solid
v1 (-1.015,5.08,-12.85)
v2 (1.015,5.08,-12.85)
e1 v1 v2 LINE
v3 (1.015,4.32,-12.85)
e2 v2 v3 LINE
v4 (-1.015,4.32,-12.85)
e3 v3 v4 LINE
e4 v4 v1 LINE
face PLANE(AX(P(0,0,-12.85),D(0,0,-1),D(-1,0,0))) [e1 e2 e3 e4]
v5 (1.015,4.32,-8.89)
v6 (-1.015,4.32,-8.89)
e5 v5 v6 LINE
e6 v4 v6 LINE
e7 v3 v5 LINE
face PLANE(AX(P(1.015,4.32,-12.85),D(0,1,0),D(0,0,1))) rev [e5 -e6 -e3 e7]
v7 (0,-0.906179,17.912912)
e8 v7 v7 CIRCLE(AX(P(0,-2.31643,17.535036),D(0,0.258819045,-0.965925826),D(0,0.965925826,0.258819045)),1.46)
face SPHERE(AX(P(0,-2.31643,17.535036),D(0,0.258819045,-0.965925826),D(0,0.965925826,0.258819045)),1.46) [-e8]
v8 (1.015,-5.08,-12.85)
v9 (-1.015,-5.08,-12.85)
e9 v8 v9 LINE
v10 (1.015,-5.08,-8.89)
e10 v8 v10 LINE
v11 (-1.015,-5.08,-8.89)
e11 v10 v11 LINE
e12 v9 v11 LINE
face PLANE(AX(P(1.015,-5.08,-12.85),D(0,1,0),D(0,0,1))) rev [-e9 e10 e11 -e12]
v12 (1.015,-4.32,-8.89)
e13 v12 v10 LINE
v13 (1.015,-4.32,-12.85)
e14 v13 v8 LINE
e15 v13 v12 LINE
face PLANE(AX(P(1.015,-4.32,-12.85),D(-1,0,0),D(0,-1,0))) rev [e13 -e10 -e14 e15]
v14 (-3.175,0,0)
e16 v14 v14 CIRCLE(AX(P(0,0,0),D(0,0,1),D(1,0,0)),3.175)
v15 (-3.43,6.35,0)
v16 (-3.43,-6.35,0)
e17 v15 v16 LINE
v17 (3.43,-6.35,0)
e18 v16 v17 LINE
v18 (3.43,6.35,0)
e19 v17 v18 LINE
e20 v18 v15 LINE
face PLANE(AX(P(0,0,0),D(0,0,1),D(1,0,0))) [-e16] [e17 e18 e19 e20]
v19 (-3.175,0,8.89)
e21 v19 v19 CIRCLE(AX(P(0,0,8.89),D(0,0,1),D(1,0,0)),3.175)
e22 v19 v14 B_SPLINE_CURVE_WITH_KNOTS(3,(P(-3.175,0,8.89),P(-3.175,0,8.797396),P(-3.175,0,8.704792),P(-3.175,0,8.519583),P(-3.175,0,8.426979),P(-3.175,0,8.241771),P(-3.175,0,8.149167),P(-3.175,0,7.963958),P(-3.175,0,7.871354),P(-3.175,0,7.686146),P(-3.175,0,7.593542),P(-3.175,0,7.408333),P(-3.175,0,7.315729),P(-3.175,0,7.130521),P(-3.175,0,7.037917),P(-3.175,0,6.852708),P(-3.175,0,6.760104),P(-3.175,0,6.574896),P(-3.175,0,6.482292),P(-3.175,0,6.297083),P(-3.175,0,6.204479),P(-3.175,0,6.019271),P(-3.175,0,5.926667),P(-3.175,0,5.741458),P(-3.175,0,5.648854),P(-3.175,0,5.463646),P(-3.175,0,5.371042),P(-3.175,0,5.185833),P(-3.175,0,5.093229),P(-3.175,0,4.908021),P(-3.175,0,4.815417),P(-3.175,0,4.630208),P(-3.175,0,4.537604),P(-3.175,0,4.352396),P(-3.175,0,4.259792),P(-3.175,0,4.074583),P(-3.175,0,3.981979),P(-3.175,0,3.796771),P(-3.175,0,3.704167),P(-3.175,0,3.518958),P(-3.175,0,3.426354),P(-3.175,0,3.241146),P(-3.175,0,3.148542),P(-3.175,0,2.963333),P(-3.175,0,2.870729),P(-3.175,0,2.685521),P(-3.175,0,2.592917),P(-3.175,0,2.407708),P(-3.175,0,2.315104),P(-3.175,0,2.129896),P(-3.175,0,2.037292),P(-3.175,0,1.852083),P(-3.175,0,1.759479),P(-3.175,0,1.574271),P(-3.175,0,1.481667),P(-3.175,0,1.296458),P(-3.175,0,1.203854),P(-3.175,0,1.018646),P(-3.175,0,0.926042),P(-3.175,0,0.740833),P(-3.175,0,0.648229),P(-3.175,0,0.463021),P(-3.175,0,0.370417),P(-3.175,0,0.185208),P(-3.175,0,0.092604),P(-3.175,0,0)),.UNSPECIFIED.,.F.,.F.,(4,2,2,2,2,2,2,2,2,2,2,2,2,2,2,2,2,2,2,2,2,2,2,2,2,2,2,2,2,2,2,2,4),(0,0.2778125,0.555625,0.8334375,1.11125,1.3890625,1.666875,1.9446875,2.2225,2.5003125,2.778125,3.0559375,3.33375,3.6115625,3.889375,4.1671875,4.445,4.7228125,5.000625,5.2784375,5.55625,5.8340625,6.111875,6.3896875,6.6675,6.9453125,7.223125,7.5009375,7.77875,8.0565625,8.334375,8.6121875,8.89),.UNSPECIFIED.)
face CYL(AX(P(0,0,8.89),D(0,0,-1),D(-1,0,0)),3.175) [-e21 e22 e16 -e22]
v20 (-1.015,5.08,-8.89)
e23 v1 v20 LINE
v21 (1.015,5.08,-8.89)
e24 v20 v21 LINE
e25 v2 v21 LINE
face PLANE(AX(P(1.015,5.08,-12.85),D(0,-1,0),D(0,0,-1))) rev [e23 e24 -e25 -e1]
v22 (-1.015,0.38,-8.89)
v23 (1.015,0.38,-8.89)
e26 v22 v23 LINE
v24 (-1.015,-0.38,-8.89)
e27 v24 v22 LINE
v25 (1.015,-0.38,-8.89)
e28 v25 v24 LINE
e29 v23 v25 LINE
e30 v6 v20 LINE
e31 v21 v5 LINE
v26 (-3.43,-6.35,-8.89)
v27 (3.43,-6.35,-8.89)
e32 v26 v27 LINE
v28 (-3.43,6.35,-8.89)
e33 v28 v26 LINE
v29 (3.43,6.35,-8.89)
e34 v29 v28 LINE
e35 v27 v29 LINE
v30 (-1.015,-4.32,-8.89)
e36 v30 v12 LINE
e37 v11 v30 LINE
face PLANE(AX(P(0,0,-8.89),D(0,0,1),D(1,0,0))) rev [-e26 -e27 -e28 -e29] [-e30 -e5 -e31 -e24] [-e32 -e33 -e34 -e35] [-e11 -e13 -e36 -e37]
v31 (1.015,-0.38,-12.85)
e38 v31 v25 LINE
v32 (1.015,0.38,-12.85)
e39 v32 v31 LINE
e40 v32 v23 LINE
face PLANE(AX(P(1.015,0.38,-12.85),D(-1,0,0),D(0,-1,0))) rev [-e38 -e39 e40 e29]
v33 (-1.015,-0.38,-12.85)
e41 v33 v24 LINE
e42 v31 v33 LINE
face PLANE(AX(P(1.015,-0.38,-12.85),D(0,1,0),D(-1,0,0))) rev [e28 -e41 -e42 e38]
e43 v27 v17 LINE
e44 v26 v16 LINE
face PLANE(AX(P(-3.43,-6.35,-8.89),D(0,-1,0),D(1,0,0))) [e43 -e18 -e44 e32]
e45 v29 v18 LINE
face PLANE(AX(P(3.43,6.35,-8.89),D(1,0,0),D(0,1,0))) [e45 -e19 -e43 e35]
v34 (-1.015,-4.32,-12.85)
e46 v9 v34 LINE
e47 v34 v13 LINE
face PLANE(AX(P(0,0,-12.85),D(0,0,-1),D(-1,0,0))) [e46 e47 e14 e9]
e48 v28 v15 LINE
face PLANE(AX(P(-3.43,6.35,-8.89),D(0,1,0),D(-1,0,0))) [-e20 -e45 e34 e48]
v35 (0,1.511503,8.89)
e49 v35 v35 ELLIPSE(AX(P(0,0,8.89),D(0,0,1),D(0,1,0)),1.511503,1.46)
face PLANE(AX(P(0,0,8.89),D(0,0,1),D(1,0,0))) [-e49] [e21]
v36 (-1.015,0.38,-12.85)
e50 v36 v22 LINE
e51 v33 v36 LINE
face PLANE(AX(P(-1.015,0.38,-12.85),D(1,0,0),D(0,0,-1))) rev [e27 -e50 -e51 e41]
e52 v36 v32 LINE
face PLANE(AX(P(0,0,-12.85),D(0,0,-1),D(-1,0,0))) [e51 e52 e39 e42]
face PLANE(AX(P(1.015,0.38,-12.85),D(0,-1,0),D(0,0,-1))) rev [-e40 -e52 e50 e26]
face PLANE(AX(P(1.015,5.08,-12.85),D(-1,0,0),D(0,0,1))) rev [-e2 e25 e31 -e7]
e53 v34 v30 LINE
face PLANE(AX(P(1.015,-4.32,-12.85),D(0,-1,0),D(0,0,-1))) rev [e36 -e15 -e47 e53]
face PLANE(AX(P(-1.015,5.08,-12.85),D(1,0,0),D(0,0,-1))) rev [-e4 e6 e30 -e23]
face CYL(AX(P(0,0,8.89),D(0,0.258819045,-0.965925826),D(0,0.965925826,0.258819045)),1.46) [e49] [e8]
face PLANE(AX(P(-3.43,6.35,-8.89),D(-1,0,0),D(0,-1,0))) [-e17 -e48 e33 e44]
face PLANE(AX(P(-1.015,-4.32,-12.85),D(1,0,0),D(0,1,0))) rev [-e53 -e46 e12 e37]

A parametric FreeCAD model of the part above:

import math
import FreeCAD as App
import Part
import Sketcher
from FreeCAD import Vector
Q = App.Units.Quantity

doc = App.newDocument("Part")
body = doc.addObject("PartDesign::Body", "Body")

# Sketch on XY plane
sketch1 = body.newObject("Sketcher::SketchObject", "Sketch")
sketch1.AttachmentSupport = (doc.getObject("XY_Plane"), [""])
sketch1.MapMode = "FlatFace"
sketch1.addGeometry(Part.LineSegment(Vector(-3, 6, 0), Vector(-3, -6, 0)), False)
sketch1.addGeometry(Part.LineSegment(Vector(-3, -6, 0), Vector(3, -6, 0)), False)
sketch1.addGeometry(Part.LineSegment(Vector(3, -6, 0), Vector(3, 6, 0)), False)
sketch1.addGeometry(Part.LineSegment(Vector(3, 6, 0), Vector(-3, 6, 0)), False)
sketch1.addConstraint(Sketcher.Constraint("Coincident", 0, 2, 1, 1))
sketch1.addConstraint(Sketcher.Constraint("Coincident", 1, 2, 2, 1))
sketch1.addConstraint(Sketcher.Constraint("Coincident", 2, 2, 3, 1))
sketch1.addConstraint(Sketcher.Constraint("Coincident", 3, 2, 0, 1))
sketch1.addConstraint(Sketcher.Constraint("Vertical", 0))
sketch1.addConstraint(Sketcher.Constraint("Horizontal", 1))
sketch1.addConstraint(Sketcher.Constraint("Vertical", 2))
sketch1.addConstraint(Sketcher.Constraint("Horizontal", 3))
sketch1.addConstraint(Sketcher.Constraint("Symmetric", 0, 2, 2, 2, -1, 1))
sketch1.addConstraint(Sketcher.Constraint("DistanceY", 0, 2, 0, 1, Q("0.5 in")))
sketch1.addConstraint(Sketcher.Constraint("DistanceX", 1, 1, 1, 2, Q("6.86 mm")))
pad1 = body.newObject("PartDesign::Pad", "Pad")
pad1.Profile = sketch1
pad1.Length = Q("0.35 in")
pad1.Reversed = True

# Sketch on XY plane
sketch2 = body.newObject("Sketcher::SketchObject", "Sketch001")
sketch2.AttachmentSupport = (doc.getObject("XY_Plane"), [""])
sketch2.MapMode = "FlatFace"
sketch2.addGeometry(Part.Circle(Vector(0, 0, 0), Vector(0, 0, 1), 3.2), False)
sketch2.addConstraint(Sketcher.Constraint("Coincident", 0, 3, -1, 1))
sketch2.addConstraint(Sketcher.Constraint("Diameter", 0, Q("0.25 in")))
pad2 = body.newObject("PartDesign::Pad", "Pad001")
pad2.Profile = sketch2
pad2.Length = Q("0.35 in")

# Sketch on YZ plane
sketch3 = body.newObject("Sketcher::SketchObject", "Sketch002")
sketch3.AttachmentSupport = (doc.getObject("YZ_Plane"), [""])
sketch3.MapMode = "FlatFace"
sketch3.addGeometry(Part.LineSegment(Vector(1.5, 8.9, 0), Vector(-0.9, 17.9, 0)), False)
sketch3.addGeometry(Part.ArcOfCircle(Part.Circle(Vector(-2.3, 17.5, 0), Vector(0, 0, 1), 1.5), math.radians(15), math.radians(105)), False)
sketch3.addGeometry(Part.LineSegment(Vector(-2.7, 18.9, 0), Vector(0.1, 8.5, 0)), False)
sketch3.addGeometry(Part.LineSegment(Vector(0.1, 8.5, 0), Vector(1.5, 8.9, 0)), False)
sketch3.addGeometry(Part.LineSegment(Vector(0.1, 8.5, 0), Vector(-2.7, 18.9, 0)), True)  # axis
sketch3.addConstraint(Sketcher.Constraint("Tangent", 0, 2, 1, 1))
sketch3.addConstraint(Sketcher.Constraint("Coincident", 1, 2, 2, 1))
sketch3.addConstraint(Sketcher.Constraint("Coincident", 2, 2, 3, 1))
sketch3.addConstraint(Sketcher.Constraint("Coincident", 3, 2, 0, 1))
sketch3.addConstraint(Sketcher.Constraint("Coincident", 4, 1, 2, 2))
sketch3.addConstraint(Sketcher.Constraint("Coincident", 4, 2, 1, 2))
sketch3.addConstraint(Sketcher.Constraint("Parallel", 0, 2))
sketch3.addConstraint(Sketcher.Constraint("Perpendicular", 2, 3))
sketch3.addConstraint(Sketcher.Constraint("Angle", 0, Q("105 deg")))
sketch3.addConstraint(Sketcher.Constraint("DistanceY", -1, 1, 3, 2, Q("0.35 in")))
sketch3.addConstraint(Sketcher.Constraint("Radius", 1, Q("1.46 mm")))
sketch3.addConstraint(Sketcher.Constraint("Distance", 3, Q("1.46 mm")))
sketch3.addConstraint(Sketcher.Constraint("DistanceX", 1, 3, -1, 1, Q("2.31643 mm")))
sketch3.addConstraint(Sketcher.Constraint("DistanceY", -1, 1, 0, 2, Q("17.912912 mm")))
revolution = body.newObject("PartDesign::Revolution", "Revolution")
revolution.Profile = sketch3
revolution.ReferenceAxis = (sketch3, ["Axis0"])
revolution.Angle = 360

# Sketch on XY plane
sketch4 = body.newObject("Sketcher::SketchObject", "Sketch003")
sketch4.AttachmentSupport = (doc.getObject("XY_Plane"), [""])
sketch4.MapMode = "FlatFace"
sketch4.AttachmentOffset = App.Placement(Vector(0, 0, -0.35 * 25.4), App.Rotation())
sketch4.addGeometry(Part.LineSegment(Vector(1, 0.4, 0), Vector(1, -0.4, 0)), False)
sketch4.addGeometry(Part.LineSegment(Vector(1, -0.4, 0), Vector(-1, -0.4, 0)), False)
sketch4.addGeometry(Part.LineSegment(Vector(-1, -0.4, 0), Vector(-1, 0.4, 0)), False)
sketch4.addGeometry(Part.LineSegment(Vector(-1, 0.4, 0), Vector(1, 0.4, 0)), False)
sketch4.addGeometry(Part.LineSegment(Vector(1, 5.1, 0), Vector(1, 4.3, 0)), False)
sketch4.addGeometry(Part.LineSegment(Vector(1, 4.3, 0), Vector(-1, 4.3, 0)), False)
sketch4.addGeometry(Part.LineSegment(Vector(-1, 4.3, 0), Vector(-1, 5.1, 0)), False)
sketch4.addGeometry(Part.LineSegment(Vector(-1, 5.1, 0), Vector(1, 5.1, 0)), False)
sketch4.addGeometry(Part.LineSegment(Vector(1, -4.3, 0), Vector(1, -5.1, 0)), False)
sketch4.addGeometry(Part.LineSegment(Vector(1, -5.1, 0), Vector(-1, -5.1, 0)), False)
sketch4.addGeometry(Part.LineSegment(Vector(-1, -5.1, 0), Vector(-1, -4.3, 0)), False)
sketch4.addGeometry(Part.LineSegment(Vector(-1, -4.3, 0), Vector(1, -4.3, 0)), False)
sketch4.addConstraint(Sketcher.Constraint("Coincident", 0, 2, 1, 1))
sketch4.addConstraint(Sketcher.Constraint("Coincident", 1, 2, 2, 1))
sketch4.addConstraint(Sketcher.Constraint("Coincident", 2, 2, 3, 1))
sketch4.addConstraint(Sketcher.Constraint("Coincident", 3, 2, 0, 1))
sketch4.addConstraint(Sketcher.Constraint("Coincident", 4, 2, 5, 1))
sketch4.addConstraint(Sketcher.Constraint("Coincident", 5, 2, 6, 1))
sketch4.addConstraint(Sketcher.Constraint("Coincident", 6, 2, 7, 1))
sketch4.addConstraint(Sketcher.Constraint("Coincident", 7, 2, 4, 1))
sketch4.addConstraint(Sketcher.Constraint("Coincident", 8, 2, 9, 1))
sketch4.addConstraint(Sketcher.Constraint("Coincident", 9, 2, 10, 1))
sketch4.addConstraint(Sketcher.Constraint("Coincident", 10, 2, 11, 1))
sketch4.addConstraint(Sketcher.Constraint("Coincident", 11, 2, 8, 1))
sketch4.addConstraint(Sketcher.Constraint("Vertical", 0))
sketch4.addConstraint(Sketcher.Constraint("Horizontal", 1))
sketch4.addConstraint(Sketcher.Constraint("Vertical", 2))
sketch4.addConstraint(Sketcher.Constraint("Horizontal", 3))
sketch4.addConstraint(Sketcher.Constraint("Vertical", 4))
sketch4.addConstraint(Sketcher.Constraint("Horizontal", 5))
sketch4.addConstraint(Sketcher.Constraint("Vertical", 6))
sketch4.addConstraint(Sketcher.Constraint("Horizontal", 7))
sketch4.addConstraint(Sketcher.Constraint("Vertical", 8))
sketch4.addConstraint(Sketcher.Constraint("Horizontal", 9))
sketch4.addConstraint(Sketcher.Constraint("Vertical", 10))
sketch4.addConstraint(Sketcher.Constraint("Horizontal", 11))
sketch4.addConstraint(Sketcher.Constraint("Symmetric", 0, 2, 2, 2, -1, 1))
sketch4.addConstraint(Sketcher.Constraint("Symmetric", 6, 2, 8, 2, -1, 1))
sketch4.addConstraint(Sketcher.Constraint("Symmetric", 4, 2, 10, 2, -1, 1))
sketch4.addConstraint(Sketcher.Constraint("Vertical", 3, 2, 4, 2))
sketch4.addConstraint(Sketcher.Constraint("Vertical", 2, 2, 5, 2))
sketch4.addConstraint(Sketcher.Constraint("Equal", 2, 4))
sketch4.addConstraint(Sketcher.Constraint("DistanceY", -1, 1, 6, 2, Q("0.2 in")))
sketch4.addConstraint(Sketcher.Constraint("DistanceX", 1, 2, 1, 1, Q("2.03 mm")))
sketch4.addConstraint(Sketcher.Constraint("DistanceY", 0, 2, 0, 1, Q("0.76 mm")))
pad3 = body.newObject("PartDesign::Pad", "Pad002")
pad3.Profile = sketch4
pad3.Length = 3.96
pad3.Reversed = True

doc.recompute()
